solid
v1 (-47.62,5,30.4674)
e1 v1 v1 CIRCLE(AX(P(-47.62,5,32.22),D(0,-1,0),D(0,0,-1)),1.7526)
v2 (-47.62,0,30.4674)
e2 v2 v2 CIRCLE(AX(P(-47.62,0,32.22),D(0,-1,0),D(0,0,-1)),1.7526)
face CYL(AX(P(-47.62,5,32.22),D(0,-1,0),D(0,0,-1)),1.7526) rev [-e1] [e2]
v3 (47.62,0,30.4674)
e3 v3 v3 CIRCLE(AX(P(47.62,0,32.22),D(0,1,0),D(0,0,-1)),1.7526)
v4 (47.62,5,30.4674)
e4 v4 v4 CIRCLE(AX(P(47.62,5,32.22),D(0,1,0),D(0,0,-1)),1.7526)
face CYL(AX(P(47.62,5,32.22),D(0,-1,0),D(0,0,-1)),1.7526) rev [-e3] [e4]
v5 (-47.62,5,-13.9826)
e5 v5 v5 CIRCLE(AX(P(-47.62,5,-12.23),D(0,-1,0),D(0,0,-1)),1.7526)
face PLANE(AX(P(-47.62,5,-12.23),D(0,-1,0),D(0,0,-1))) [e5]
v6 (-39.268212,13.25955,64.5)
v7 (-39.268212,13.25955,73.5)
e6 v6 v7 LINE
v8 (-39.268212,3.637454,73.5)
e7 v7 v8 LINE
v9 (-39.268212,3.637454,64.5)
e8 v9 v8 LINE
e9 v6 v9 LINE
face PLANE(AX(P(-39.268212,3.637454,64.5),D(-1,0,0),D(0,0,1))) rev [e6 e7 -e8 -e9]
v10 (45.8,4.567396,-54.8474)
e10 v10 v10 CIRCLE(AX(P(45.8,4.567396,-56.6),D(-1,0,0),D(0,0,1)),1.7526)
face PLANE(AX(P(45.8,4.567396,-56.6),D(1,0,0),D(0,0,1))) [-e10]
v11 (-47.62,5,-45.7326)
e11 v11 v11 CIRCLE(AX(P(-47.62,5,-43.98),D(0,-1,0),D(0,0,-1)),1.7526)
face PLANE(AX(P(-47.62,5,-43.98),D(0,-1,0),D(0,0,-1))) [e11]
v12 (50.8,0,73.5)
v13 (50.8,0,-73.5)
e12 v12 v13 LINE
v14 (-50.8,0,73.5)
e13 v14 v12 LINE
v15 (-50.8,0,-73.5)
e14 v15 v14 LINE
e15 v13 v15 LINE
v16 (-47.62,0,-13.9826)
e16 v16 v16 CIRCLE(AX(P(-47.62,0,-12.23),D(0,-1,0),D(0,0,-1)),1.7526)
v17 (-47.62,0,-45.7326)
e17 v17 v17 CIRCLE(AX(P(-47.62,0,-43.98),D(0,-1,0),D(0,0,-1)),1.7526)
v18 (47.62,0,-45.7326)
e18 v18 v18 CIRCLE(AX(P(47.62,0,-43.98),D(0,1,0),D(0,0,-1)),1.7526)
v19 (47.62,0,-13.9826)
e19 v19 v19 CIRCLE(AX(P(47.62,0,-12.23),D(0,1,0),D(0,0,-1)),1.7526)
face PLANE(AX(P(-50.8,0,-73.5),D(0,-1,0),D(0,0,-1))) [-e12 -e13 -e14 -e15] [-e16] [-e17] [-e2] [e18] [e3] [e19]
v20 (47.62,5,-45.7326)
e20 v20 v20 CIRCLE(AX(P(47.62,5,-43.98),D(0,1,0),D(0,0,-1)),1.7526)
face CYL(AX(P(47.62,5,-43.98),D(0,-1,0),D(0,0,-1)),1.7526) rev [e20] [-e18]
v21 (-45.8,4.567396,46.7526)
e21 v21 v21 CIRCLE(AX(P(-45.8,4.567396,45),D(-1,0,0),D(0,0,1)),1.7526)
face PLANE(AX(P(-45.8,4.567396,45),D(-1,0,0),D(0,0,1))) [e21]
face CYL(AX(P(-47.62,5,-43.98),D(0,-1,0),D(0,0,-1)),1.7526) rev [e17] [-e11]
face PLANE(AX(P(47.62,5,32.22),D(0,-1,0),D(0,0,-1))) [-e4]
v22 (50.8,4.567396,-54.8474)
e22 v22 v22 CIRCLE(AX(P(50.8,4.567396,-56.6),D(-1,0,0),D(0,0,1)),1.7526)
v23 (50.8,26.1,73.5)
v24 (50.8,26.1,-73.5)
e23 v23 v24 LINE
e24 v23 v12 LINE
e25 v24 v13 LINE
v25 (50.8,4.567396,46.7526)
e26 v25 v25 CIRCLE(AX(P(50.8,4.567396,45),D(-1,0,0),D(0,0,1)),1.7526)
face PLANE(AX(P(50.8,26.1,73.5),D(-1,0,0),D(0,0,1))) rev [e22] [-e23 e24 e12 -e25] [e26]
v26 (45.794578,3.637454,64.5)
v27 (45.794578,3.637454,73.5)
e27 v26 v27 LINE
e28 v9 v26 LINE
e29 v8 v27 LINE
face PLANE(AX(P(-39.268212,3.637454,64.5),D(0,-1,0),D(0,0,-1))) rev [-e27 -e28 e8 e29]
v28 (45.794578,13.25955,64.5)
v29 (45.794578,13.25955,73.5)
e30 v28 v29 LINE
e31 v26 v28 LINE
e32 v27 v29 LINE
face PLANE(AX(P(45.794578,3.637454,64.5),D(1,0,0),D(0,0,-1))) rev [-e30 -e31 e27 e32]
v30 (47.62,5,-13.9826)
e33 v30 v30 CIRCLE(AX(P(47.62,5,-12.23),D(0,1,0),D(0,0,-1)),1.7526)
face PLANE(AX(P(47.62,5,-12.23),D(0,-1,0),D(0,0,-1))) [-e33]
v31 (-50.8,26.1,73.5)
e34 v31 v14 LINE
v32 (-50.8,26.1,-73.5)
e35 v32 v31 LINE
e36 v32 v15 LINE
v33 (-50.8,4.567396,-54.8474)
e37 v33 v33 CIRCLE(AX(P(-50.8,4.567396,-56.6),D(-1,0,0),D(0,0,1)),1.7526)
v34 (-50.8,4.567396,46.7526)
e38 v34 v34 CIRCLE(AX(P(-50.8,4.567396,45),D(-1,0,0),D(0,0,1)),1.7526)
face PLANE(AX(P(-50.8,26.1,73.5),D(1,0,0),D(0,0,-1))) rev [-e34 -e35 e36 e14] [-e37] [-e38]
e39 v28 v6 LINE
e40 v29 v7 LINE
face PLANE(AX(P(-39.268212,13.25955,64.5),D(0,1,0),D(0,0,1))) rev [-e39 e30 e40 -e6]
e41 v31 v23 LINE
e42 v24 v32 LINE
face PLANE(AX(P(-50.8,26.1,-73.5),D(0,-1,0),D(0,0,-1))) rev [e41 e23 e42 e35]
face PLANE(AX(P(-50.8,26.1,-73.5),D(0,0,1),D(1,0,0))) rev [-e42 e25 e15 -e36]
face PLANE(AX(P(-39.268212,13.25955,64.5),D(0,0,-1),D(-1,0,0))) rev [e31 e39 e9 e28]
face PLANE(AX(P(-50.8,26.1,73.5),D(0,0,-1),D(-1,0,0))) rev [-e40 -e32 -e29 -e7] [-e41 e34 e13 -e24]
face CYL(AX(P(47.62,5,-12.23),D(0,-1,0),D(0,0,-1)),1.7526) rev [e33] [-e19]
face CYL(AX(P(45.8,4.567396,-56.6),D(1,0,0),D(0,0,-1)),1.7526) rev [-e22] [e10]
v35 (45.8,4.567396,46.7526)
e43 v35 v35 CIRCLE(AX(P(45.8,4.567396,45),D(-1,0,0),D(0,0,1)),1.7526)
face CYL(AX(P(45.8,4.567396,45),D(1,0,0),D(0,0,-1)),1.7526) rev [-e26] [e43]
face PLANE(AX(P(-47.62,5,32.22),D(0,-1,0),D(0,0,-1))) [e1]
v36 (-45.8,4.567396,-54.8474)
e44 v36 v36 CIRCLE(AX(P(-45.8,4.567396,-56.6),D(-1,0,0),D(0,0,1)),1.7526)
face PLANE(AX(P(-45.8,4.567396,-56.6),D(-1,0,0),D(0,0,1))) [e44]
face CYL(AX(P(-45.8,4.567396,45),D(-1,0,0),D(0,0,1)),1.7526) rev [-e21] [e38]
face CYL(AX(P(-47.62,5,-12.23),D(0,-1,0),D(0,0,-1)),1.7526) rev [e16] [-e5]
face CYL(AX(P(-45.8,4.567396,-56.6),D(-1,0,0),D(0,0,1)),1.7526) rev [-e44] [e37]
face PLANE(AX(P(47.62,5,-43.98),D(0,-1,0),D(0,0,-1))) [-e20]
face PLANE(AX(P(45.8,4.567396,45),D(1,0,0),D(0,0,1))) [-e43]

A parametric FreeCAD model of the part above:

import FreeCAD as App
import Part
import Sketcher

doc = App.newDocument("Part")
body = doc.addObject("PartDesign::Body", "Body")

# Sketch on XZ plane
sketch1 = body.newObject("Sketcher::SketchObject", "Sketch")
sketch1.AttachmentSupport = (doc.getObject("XZ_Plane"), [""])
sketch1.MapMode = "FlatFace"
sketch1.addGeometry(Part.LineSegment(App.Vector(-51, -74, 0), App.Vector(-51, 74, 0)), False)
sketch1.addGeometry(Part.LineSegment(App.Vector(-51, 74, 0), App.Vector(51, 74, 0)), False)
sketch1.addGeometry(Part.LineSegment(App.Vector(51, 74, 0), App.Vector(51, -74, 0)), False)
sketch1.addGeometry(Part.LineSegment(App.Vector(51, -74, 0), App.Vector(-51, -74, 0)), False)
sketch1.addConstraint(Sketcher.Constraint("Coincident", 0, 2, 1, 1))
sketch1.addConstraint(Sketcher.Constraint("Coincident", 1, 2, 2, 1))
sketch1.addConstraint(Sketcher.Constraint("Coincident", 2, 2, 3, 1))
sketch1.addConstraint(Sketcher.Constraint("Coincident", 3, 2, 0, 1))
sketch1.addConstraint(Sketcher.Constraint("Vertical", 0))
sketch1.addConstraint(Sketcher.Constraint("Horizontal", 1))
sketch1.addConstraint(Sketcher.Constraint("Vertical", 2))
sketch1.addConstraint(Sketcher.Constraint("Horizontal", 3))
sketch1.addConstraint(Sketcher.Constraint("Symmetric", 0, 2, 2, 2, -1, 1))
sketch1.addConstraint(Sketcher.Constraint("DistanceY", 0, 1, 0, 2, 147.0))
sketch1.addConstraint(Sketcher.Constraint("DistanceX", 1, 1, 1, 2, 101.6))
pad1 = body.newObject("PartDesign::Pad", "Pad")
pad1.Profile = sketch1
pad1.Length = 26.1
pad1.Reversed = True

# Sketch on XY plane
sketch2 = body.newObject("Sketcher::SketchObject", "Sketch001")
sketch2.AttachmentSupport = (doc.getObject("XY_Plane"), [""])
sketch2.MapMode = "FlatFace"
sketch2.AttachmentOffset = App.Placement(App.Vector(0, 0, 73.5), App.Rotation())
sketch2.addGeometry(Part.LineSegment(App.Vector(-39, 13, 0), App.Vector(-39, 4, 0)), False)
sketch2.addGeometry(Part.LineSegment(App.Vector(-39, 4, 0), App.Vector(46, 4, 0)), False)
sketch2.addGeometry(Part.LineSegment(App.Vector(46, 4, 0), App.Vector(46, 13, 0)), False)
sketch2.addGeometry(Part.LineSegment(App.Vector(46, 13, 0), App.Vector(-39, 13, 0)), False)
sketch2.addConstraint(Sketcher.Constraint("Coincident", 0, 2, 1, 1))
sketch2.addConstraint(Sketcher.Constraint("Coincident", 1, 2, 2, 1))
sketch2.addConstraint(Sketcher.Constraint("Coincident", 2, 2, 3, 1))
sketch2.addConstraint(Sketcher.Constraint("Coincident", 3, 2, 0, 1))
sketch2.addConstraint(Sketcher.Constraint("Vertical", 0))
sketch2.addConstraint(Sketcher.Constraint("Horizontal", 1))
sketch2.addConstraint(Sketcher.Constraint("Vertical", 2))
sketch2.addConstraint(Sketcher.Constraint("Horizontal", 3))
sketch2.addConstraint(Sketcher.Constraint("DistanceX", 1, 1, 1, 2, 85.06279))
sketch2.addConstraint(Sketcher.Constraint("DistanceY", 0, 2, 0, 1, 9.622096))
sketch2.addConstraint(Sketcher.Constraint("DistanceY", -1, 1, 2, 2, 13.25955))
sketch2.addConstraint(Sketcher.Constraint("DistanceX", 0, 2, -1, 1, 39.268212))
pocket1 = body.newObject("PartDesign::Pocket", "Pocket")
pocket1.Profile = sketch2
pocket1.Length = 9

# Sketch on XZ plane
sketch3 = body.newObject("Sketcher::SketchObject", "Sketch002")
sketch3.AttachmentSupport = (doc.getObject("XZ_Plane"), [""])
sketch3.MapMode = "FlatFace"
sketch3.addGeometry(Part.Circle(App.Vector(-47.6, 32.2, 0), App.Vector(0, 0, 1), 1.8), False)
sketch3.addGeometry(Part.Circle(App.Vector(-47.6, -12.2, 0), App.Vector(0, 0, 1), 1.8), False)
sketch3.addGeometry(Part.Circle(App.Vector(-47.6, -44, 0), App.Vector(0, 0, 1), 1.8), False)
sketch3.addConstraint(Sketcher.Constraint("Equal", 0, 1))
sketch3.addConstraint(Sketcher.Constraint("Equal", 1, 2))
sketch3.addConstraint(Sketcher.Constraint("Vertical", 0, 3, 1, 3))
sketch3.addConstraint(Sketcher.Constraint("Vertical", 1, 3, 2, 3))
sketch3.addConstraint(Sketcher.Constraint("Diameter", 0, 3.5052))
sketch3.addConstraint(Sketcher.Constraint("DistanceY", 2, 3, 0, 3, 76.2))
sketch3.addConstraint(Sketcher.Constraint("DistanceX", 0, 3, -1, 1, 47.62))
sketch3.addConstraint(Sketcher.Constraint("DistanceY", -1, 1, 0, 3, 32.22))
sketch3.addConstraint(Sketcher.Constraint("DistanceY", 1, 3, -1, 1, 12.23))
pocket2 = body.newObject("PartDesign::Pocket", "Pocket001")
pocket2.Profile = sketch3
pocket2.Length = 5

# Sketch on YZ plane
sketch4 = body.newObject("Sketcher::SketchObject", "Sketch003")
sketch4.AttachmentSupport = (doc.getObject("YZ_Plane"), [""])
sketch4.MapMode = "FlatFace"
sketch4.AttachmentOffset = App.Placement(App.Vector(0, 0, -50.8), App.Rotation())
sketch4.addGeometry(Part.Circle(App.Vector(4.6, 45, 0), App.Vector(0, 0, 1), 1.8), False)
sketch4.addGeometry(Part.Circle(App.Vector(4.6, -56.6, 0), App.Vector(0, 0, 1), 1.8), False)
sketch4.addConstraint(Sketcher.Constraint("Equal", 0, 1))
sketch4.addConstraint(Sketcher.Constraint("Vertical", 0, 3, 1, 3))
sketch4.addConstraint(Sketcher.Constraint("DistanceY", -1, 1, 0, 3, 45.0))
sketch4.addConstraint(Sketcher.Constraint("Diameter", 0, 3.5052))
sketch4.addConstraint(Sketcher.Constraint("DistanceY", 1, 3, -1, 1, 56.6))
sketch4.addConstraint(Sketcher.Constraint("DistanceX", -1, 1, 0, 3, 4.567396))
pocket3 = body.newObject("PartDesign::Pocket", "Pocket002")
pocket3.Profile = sketch4
pocket3.Length = 5
pocket3.Reversed = True
doc.recompute()

mirrored = body.newObject("PartDesign::Mirrored", "Mirrored")
mirrored.Originals = [pocket2, pocket3]
mirrored.MirrorPlane = (doc.getObject("YZ_Plane"), [""])
body.Tip = mirrored

doc.recompute()
